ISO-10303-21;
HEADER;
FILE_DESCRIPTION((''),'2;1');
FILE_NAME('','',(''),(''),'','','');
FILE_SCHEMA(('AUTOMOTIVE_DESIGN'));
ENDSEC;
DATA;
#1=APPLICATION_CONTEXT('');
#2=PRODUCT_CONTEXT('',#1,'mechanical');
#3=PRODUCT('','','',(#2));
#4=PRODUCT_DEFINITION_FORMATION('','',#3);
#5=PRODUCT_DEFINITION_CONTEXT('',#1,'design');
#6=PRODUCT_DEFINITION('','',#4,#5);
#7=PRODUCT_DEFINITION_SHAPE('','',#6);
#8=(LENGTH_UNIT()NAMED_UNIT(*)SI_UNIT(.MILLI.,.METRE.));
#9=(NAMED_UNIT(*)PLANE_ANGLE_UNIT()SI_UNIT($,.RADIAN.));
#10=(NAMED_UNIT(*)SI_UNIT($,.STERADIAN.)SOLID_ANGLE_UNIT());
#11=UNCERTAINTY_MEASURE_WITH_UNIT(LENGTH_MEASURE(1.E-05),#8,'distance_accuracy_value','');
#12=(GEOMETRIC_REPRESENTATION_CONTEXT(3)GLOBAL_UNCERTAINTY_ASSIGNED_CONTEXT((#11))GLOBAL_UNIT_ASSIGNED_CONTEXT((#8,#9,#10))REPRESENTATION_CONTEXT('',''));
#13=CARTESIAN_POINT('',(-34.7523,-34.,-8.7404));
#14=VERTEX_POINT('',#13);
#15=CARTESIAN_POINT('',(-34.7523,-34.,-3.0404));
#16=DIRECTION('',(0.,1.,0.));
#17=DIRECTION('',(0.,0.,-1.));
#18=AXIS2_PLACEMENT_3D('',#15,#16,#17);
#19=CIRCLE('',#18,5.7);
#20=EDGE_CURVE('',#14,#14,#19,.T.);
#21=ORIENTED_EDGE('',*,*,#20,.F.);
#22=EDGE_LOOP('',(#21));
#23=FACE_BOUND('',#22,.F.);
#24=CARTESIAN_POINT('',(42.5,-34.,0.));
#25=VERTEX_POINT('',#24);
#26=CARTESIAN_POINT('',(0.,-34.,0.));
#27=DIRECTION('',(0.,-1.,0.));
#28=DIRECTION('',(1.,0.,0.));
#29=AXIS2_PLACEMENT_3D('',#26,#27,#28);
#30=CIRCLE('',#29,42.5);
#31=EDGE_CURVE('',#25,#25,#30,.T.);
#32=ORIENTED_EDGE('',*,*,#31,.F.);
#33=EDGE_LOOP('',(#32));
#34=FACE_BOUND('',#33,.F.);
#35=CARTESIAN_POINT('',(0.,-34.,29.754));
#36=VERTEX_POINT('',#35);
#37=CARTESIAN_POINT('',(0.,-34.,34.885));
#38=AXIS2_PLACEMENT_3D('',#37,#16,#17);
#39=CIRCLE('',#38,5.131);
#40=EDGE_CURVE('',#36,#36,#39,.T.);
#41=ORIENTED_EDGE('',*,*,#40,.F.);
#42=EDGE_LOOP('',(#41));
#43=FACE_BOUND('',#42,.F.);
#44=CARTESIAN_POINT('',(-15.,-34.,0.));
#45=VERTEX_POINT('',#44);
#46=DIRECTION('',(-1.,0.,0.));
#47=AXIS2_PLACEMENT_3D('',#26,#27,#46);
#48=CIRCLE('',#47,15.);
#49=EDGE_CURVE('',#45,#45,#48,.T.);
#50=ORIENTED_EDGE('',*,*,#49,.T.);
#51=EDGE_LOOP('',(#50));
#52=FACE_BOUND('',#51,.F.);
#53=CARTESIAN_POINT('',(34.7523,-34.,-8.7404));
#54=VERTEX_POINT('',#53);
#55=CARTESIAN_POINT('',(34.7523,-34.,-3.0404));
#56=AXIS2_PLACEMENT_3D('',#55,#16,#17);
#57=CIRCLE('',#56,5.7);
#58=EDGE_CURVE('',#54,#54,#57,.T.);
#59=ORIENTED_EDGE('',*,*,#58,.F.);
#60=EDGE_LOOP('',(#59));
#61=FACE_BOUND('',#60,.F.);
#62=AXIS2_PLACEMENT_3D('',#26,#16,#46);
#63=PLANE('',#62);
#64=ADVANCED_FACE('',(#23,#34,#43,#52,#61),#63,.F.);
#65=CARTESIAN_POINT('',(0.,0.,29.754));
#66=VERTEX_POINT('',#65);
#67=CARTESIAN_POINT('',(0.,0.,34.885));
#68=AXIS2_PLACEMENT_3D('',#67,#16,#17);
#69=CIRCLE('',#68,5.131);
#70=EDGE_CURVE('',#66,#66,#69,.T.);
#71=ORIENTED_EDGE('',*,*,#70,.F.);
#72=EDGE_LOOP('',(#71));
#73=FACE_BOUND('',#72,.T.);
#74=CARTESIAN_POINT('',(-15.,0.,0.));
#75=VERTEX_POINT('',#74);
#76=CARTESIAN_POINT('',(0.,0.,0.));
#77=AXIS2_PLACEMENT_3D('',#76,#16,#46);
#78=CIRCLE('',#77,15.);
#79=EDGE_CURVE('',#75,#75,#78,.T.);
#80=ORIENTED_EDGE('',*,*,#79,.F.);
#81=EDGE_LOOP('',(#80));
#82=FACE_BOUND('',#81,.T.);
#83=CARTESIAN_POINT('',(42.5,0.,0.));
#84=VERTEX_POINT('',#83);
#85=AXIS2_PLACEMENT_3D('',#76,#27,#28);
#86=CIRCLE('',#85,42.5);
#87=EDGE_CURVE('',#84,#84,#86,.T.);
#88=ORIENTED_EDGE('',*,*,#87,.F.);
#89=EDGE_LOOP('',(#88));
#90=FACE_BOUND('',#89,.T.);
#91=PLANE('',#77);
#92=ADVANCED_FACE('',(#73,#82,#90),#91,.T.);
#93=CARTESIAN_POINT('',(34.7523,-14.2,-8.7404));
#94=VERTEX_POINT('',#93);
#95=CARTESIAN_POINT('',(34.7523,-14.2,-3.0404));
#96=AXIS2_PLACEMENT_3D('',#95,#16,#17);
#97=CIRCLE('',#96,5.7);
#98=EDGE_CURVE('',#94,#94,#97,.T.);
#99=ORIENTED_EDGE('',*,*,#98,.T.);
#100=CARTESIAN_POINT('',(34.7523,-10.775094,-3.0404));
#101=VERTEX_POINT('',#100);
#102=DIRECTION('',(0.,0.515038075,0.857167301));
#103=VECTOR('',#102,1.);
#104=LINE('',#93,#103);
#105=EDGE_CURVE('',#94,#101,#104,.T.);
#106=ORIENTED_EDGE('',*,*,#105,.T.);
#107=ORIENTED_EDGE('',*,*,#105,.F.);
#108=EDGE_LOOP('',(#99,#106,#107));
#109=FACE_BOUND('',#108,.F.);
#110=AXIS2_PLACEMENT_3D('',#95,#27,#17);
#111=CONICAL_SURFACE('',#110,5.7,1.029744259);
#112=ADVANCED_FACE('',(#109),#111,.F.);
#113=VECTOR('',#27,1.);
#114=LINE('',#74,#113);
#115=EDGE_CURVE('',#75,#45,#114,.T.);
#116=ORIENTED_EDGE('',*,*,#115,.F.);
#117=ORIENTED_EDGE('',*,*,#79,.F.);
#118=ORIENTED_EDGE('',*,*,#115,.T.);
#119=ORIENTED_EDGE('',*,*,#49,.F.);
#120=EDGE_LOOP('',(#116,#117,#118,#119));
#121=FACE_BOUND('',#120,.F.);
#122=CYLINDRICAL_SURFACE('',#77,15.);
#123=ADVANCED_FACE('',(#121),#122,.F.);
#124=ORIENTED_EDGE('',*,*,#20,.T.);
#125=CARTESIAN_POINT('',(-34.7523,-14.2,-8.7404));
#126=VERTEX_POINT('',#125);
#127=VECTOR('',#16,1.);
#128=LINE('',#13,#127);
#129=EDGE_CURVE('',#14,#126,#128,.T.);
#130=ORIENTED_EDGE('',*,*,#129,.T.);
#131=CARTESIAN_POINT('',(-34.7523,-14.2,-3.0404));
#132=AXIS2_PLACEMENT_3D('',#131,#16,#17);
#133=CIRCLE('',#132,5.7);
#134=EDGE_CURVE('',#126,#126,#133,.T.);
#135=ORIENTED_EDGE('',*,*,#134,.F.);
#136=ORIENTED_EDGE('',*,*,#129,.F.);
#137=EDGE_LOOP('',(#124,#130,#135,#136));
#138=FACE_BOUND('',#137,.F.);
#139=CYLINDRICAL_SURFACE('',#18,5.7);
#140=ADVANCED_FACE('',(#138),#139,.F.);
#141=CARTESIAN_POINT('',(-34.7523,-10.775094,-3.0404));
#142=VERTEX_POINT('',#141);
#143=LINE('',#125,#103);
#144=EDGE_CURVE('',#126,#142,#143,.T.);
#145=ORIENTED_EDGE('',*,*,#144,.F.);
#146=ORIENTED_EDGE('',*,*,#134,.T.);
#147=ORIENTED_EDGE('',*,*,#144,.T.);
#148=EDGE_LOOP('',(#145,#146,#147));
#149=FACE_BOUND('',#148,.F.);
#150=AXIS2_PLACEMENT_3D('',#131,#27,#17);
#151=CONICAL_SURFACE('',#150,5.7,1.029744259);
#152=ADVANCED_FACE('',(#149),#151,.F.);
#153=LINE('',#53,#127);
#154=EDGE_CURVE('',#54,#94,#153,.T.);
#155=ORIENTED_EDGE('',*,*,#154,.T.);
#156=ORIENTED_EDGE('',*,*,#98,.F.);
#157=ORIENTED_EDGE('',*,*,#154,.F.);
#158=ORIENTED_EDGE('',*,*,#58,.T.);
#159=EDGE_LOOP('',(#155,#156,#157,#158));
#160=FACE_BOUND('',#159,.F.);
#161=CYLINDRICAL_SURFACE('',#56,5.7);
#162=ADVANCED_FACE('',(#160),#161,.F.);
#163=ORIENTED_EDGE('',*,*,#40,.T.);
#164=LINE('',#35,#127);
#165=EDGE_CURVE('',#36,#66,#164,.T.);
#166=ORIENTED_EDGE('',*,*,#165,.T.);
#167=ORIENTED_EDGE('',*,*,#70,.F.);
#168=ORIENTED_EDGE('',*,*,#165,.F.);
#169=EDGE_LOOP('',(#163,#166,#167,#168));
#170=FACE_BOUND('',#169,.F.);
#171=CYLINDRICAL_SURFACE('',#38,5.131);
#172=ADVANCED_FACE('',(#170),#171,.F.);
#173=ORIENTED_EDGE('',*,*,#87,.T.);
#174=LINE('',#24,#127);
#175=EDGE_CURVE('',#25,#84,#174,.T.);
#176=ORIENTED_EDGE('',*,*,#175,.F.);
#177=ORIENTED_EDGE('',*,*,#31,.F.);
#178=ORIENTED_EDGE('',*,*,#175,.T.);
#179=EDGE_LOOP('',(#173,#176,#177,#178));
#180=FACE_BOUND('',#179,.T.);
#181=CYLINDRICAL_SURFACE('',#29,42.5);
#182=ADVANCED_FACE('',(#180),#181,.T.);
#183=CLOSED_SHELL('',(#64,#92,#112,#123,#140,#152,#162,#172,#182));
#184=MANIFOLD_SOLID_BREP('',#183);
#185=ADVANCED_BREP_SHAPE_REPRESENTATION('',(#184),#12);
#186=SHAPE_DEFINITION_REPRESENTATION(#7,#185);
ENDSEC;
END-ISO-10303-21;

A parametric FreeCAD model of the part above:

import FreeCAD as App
import Part
import Sketcher

V = App.Vector

doc = App.newDocument("Part")
params = doc.addObject("Spreadsheet::Sheet", "Params")
for row, (alias, value) in enumerate([
    ("sketch1_diameter", "80 mm"),
    ("sketch1_diameter2", "30 mm"),
    ("pad1_length", "34 mm"),
    ("sketch2_diameter", "85 mm"),
    ("sketch2_diameter2", "30 mm"),
    ("pad2_length", "34 mm"),
    ("sketch3_diameter", "11.4 mm"),
    ("hole_diameter", "11.4 mm"),
    ("hole_depth", "19.8 mm"),
    ("hole2_diameter", "10.262 mm"),
    ("hole2_depth", "34 mm"),
], start=1):
    params.set(f"A{row}", alias)
    params.set(f"B{row}", "=" + value)
    params.setAlias(f"B{row}", alias)

body = doc.addObject("PartDesign::Body", "Body")

sketch1 = doc.addObject("Sketcher::SketchObject", "Sketch")
body.addObject(sketch1)
sketch1.AttachmentSupport = (doc.XZ_Plane, [""])
sketch1.MapMode = "FlatFace"
sketch1.addGeometry(Part.Circle(V(0, 0, 0), V(0, 0, 1), 40), False)
sketch1.addGeometry(Part.Circle(V(0, 0, 0), V(0, 0, 1), 15), False)
sketch1.addConstraint(Sketcher.Constraint("Coincident", 0, 3, -1, 1))
sketch1.addConstraint(Sketcher.Constraint("Coincident", 1, 3, -1, 1))
sketch1.addConstraint(Sketcher.Constraint("Diameter", 0, 80.0))
sketch1.addConstraint(Sketcher.Constraint("Diameter", 1, 30.0))
sketch1.setExpression("Constraints[2]", "Params.sketch1_diameter")
sketch1.setExpression("Constraints[3]", "Params.sketch1_diameter2")
pad1 = doc.addObject("PartDesign::Pad", "Pad")
body.addObject(pad1)
pad1.Profile = sketch1
pad1.setExpression("Length", "Params.pad1_length")

sketch2 = doc.addObject("Sketcher::SketchObject", "Sketch001")
body.addObject(sketch2)
sketch2.AttachmentSupport = (doc.XZ_Plane, [""])
sketch2.MapMode = "FlatFace"
sketch2.AttachmentOffset = App.Placement(V(0, 0, 34), App.Rotation())
sketch2.addGeometry(Part.Circle(V(0, 0, 0), V(0, 0, 1), 42), False)
sketch2.addGeometry(Part.Circle(V(0, 0, 0), V(0, 0, 1), 15), False)
sketch2.addConstraint(Sketcher.Constraint("Coincident", 0, 3, -1, 1))
sketch2.addConstraint(Sketcher.Constraint("Coincident", 1, 3, -1, 1))
sketch2.addConstraint(Sketcher.Constraint("Diameter", 0, 85.0))
sketch2.addConstraint(Sketcher.Constraint("Diameter", 1, 30.0))
sketch2.setExpression("Constraints[2]", "Params.sketch2_diameter")
sketch2.setExpression("Constraints[3]", "Params.sketch2_diameter2")
pad2 = doc.addObject("PartDesign::Pad", "Pad001")
body.addObject(pad2)
pad2.Profile = sketch2
pad2.setExpression("Length", "Params.pad2_length")
pad2.Reversed = True

sketch3 = doc.addObject("Sketcher::SketchObject", "Sketch002")
body.addObject(sketch3)
sketch3.AttachmentSupport = (doc.XZ_Plane, [""])
sketch3.MapMode = "FlatFace"
sketch3.AttachmentOffset = App.Placement(V(0, 0, 34), App.Rotation())
sketch3.addGeometry(Part.Circle(V(-35, -3, 0), V(0, 0, 1), 6), False)
sketch3.addGeometry(Part.Circle(V(35, -3, 0), V(0, 0, 1), 6), False)
sketch3.addConstraint(Sketcher.Constraint("Equal", 0, 1))
sketch3.addConstraint(Sketcher.Constraint("Symmetric", 0, 3, 1, 3, -2))
sketch3.addConstraint(Sketcher.Constraint("Diameter", 0, 11.4))
sketch3.addConstraint(Sketcher.Constraint("DistanceX", 0, 3, -1, 1, 34.7523))
sketch3.addConstraint(Sketcher.Constraint("DistanceY", 0, 3, -1, 1, 3.0404))
sketch3.setExpression("Constraints[2]", "Params.sketch3_diameter")
doc.recompute()
hole = doc.addObject("PartDesign::Hole", "Hole")
body.addObject(hole)
hole.Profile = sketch3
hole.ThreadType = "None"
hole.setExpression("Diameter", "Params.hole_diameter")
hole.DepthType = "Dimension"
hole.setExpression("Depth", "Params.hole_depth")
hole.DrillPoint = "Angled"
hole.DrillPointAngle = 118

sketch4 = doc.addObject("Sketcher::SketchObject", "Sketch003")
body.addObject(sketch4)
sketch4.AttachmentSupport = (doc.XZ_Plane, [""])
sketch4.MapMode = "FlatFace"
sketch4.AttachmentOffset = App.Placement(V(0, 0, 34), App.Rotation())
sketch4.addGeometry(Part.Circle(V(0, 35, 0), V(0, 0, 1), 5), False)
sketch4.addConstraint(Sketcher.Constraint("PointOnObject", 0, 3, -2))
sketch4.addConstraint(Sketcher.Constraint("Diameter", 0, 10.262))
sketch4.addConstraint(Sketcher.Constraint("DistanceY", -1, 1, 0, 3, 34.885))
doc.recompute()
hole2 = doc.addObject("PartDesign::Hole", "Hole001")
body.addObject(hole2)
hole2.Profile = sketch4
hole2.ThreadType = "None"
hole2.setExpression("Diameter", "Params.hole2_diameter")
hole2.DepthType = "Dimension"
hole2.setExpression("Depth", "Params.hole2_depth")
hole2.DrillPoint = "Angled"
hole2.DrillPointAngle = 118

doc.recompute()
